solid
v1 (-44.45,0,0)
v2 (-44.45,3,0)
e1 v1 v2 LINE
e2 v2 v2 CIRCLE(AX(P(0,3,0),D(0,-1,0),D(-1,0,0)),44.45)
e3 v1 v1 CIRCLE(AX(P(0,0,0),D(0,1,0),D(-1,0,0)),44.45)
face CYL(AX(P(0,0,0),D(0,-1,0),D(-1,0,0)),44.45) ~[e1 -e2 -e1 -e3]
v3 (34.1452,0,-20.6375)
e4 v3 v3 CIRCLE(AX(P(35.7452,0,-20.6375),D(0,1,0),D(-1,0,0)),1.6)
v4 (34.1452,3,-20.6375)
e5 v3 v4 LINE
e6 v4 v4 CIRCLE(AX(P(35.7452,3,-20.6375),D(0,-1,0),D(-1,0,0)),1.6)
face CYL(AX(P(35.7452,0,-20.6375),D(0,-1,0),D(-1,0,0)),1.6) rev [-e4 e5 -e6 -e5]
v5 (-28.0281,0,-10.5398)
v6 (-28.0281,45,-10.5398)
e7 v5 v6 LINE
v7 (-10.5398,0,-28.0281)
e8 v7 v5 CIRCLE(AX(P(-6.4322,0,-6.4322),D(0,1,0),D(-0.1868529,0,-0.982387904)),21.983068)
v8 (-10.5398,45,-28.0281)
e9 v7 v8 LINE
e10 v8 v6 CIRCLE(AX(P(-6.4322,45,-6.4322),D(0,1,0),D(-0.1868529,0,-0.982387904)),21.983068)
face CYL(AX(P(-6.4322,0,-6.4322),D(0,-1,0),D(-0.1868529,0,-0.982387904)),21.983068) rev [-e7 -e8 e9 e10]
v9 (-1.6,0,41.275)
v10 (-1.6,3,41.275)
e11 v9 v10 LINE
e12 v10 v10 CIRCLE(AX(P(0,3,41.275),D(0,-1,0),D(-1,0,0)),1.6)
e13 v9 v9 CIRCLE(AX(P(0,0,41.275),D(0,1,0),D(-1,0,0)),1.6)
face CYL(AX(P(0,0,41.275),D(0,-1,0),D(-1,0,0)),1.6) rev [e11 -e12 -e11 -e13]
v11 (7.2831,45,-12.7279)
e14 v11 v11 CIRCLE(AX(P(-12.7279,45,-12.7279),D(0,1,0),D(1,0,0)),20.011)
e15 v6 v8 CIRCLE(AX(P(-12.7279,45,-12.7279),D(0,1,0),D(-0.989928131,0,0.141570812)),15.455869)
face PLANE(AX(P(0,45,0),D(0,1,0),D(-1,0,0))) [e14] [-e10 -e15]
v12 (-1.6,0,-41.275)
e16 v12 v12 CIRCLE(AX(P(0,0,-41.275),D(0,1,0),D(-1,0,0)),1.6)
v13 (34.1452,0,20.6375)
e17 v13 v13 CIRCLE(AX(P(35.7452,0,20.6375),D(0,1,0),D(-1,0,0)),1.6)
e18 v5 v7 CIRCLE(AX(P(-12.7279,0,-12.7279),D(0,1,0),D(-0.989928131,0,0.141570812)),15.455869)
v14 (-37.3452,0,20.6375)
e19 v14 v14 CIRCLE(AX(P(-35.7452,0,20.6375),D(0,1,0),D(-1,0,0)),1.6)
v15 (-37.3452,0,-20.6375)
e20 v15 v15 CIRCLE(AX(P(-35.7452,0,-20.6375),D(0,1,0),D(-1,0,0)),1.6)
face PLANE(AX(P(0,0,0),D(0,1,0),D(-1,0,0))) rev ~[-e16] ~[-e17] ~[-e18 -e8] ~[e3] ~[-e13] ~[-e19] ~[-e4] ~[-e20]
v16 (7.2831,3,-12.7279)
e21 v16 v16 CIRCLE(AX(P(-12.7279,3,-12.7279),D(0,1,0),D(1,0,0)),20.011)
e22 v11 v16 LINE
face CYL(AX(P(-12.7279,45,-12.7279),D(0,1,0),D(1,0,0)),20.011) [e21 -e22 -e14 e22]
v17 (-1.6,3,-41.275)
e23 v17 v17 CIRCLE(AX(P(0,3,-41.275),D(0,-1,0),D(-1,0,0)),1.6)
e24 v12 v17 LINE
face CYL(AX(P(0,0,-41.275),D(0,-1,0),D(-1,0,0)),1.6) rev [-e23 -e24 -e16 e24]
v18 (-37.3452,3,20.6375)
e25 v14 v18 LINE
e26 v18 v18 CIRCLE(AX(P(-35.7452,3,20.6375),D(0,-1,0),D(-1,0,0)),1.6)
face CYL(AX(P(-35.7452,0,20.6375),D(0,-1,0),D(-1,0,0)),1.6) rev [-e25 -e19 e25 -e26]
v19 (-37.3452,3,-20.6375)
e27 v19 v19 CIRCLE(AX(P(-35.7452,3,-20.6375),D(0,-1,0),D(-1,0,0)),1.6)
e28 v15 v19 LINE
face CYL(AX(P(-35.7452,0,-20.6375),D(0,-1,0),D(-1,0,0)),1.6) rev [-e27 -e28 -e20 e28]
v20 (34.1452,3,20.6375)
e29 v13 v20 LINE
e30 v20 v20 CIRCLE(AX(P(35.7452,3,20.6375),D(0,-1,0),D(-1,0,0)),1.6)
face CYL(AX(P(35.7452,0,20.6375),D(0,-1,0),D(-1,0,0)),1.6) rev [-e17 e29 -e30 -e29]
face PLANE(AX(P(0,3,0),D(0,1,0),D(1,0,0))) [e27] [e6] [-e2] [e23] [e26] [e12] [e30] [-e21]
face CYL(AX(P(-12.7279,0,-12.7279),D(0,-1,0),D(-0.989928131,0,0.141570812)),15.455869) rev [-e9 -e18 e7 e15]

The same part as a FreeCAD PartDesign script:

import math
import FreeCAD as App
import Part
import Sketcher
from FreeCAD import Vector
Q = App.Units.Quantity

doc = App.newDocument("Part")
body = doc.addObject("PartDesign::Body", "Body")

sketch1 = body.newObject("Sketcher::SketchObject", "Sketch")
sketch1.AttachmentSupport = (doc.getObject("XZ_Plane"), [""])
sketch1.MapMode = "FlatFace"
sketch1.addGeometry([
    Part.Circle(Vector(0, 0, 0), Vector(0, 0, 1), 44.5),
    Part.Circle(Vector(35.7, -20.6, 0), Vector(0, 0, 1), 1.6),
    Part.Circle(Vector(0, -41.3, 0), Vector(0, 0, 1), 1.6),
    Part.ArcOfCircle(Part.Circle(Vector(-12.7, -12.7, 0), Vector(0, 0, 1), 15.5), math.radians(-82), math.radians(172)),
    Part.ArcOfCircle(Part.Circle(Vector(-6.4, -6.4, 0), Vector(0, 0, 1), 22), math.radians(-169), math.radians(-101)),
    Part.Circle(Vector(-35.7, -20.6, 0), Vector(0, 0, 1), 1.6),
    Part.Circle(Vector(35.7, 20.6, 0), Vector(0, 0, 1), 1.6),
    Part.Circle(Vector(-35.7, 20.6, 0), Vector(0, 0, 1), 1.6),
    Part.Circle(Vector(0, 41.3, 0), Vector(0, 0, 1), 1.6),
], False)
sketch1.addConstraint([
    Sketcher.Constraint("Coincident", 3, 1, 4, 2),
    Sketcher.Constraint("Coincident", 4, 1, 3, 2),
    Sketcher.Constraint("Coincident", 0, 3, -1, 1),
    Sketcher.Constraint("Equal", 1, 2),
    Sketcher.Constraint("Equal", 2, 5),
    Sketcher.Constraint("Equal", 5, 6),
    Sketcher.Constraint("Equal", 6, 7),
    Sketcher.Constraint("Equal", 7, 8),
    Sketcher.Constraint("Symmetric", 5, 3, 6, 3, -1, 1),
    Sketcher.Constraint("Symmetric", 1, 3, 7, 3, -1, 1),
    Sketcher.Constraint("Symmetric", 2, 3, 8, 3, -1, 1),
    Sketcher.Constraint("Symmetric", 1, 3, 5, 3, -2),
    Sketcher.Constraint("PointOnObject", 2, 3, -2),
    Sketcher.Constraint("Diameter", 0, Q("88.9 mm")),
    Sketcher.Constraint("Diameter", 1, Q("3.2 mm")),
    Sketcher.Constraint("Radius", 4, Q("21.983 mm")),
    Sketcher.Constraint("Radius", 3, Q("15.4559 mm")),
    Sketcher.Constraint("DistanceY", 2, 3, -1, 1, Q("41.275 mm")),
    Sketcher.Constraint("DistanceX", 3, 3, -1, 1, Q("12.728 mm")),
    Sketcher.Constraint("DistanceY", 3, 3, -1, 1, Q("12.728 mm")),
    Sketcher.Constraint("DistanceY", 3, 1, -1, 1, Q("28.028 mm")),
    Sketcher.Constraint("DistanceX", 4, 1, -1, 1, Q("28.028 mm")),
    Sketcher.Constraint("DistanceX", 3, 3, 1, 3, Q("48.473 mm")),
    Sketcher.Constraint("DistanceY", 1, 3, 6, 3, Q("41.275 mm")),
])
pad1 = body.newObject("PartDesign::Pad", "Pad")
pad1.Profile = sketch1
pad1.Length = 45
pad1.Reversed = True

sketch2 = body.newObject("Sketcher::SketchObject", "Sketch001")
sketch2.AttachmentSupport = (doc.getObject("XZ_Plane"), [""])
sketch2.MapMode = "FlatFace"
sketch2.AttachmentOffset = App.Placement(Vector(0, 0, -45), App.Rotation())
sketch2.addGeometry([
    Part.Circle(Vector(0, 0, 0), Vector(0, 0, 1), 44),
    Part.Circle(Vector(-13, -13, 0), Vector(0, 0, 1), 20),
], False)
sketch2.addConstraint([
    Sketcher.Constraint("Coincident", 0, 3, -1, 1),
    Sketcher.Constraint("Diameter", 0, Q("88.9 mm")),
    Sketcher.Constraint("Diameter", 1, Q("40.022 mm")),
    Sketcher.Constraint("DistanceX", 1, 3, -1, 1, Q("12.728 mm")),
    Sketcher.Constraint("DistanceY", 1, 3, -1, 1, Q("12.728 mm")),
])
pocket1 = body.newObject("PartDesign::Pocket", "Pocket")
pocket1.Profile = sketch2
pocket1.Length = 42
pocket1.Reversed = True

doc.recompute()
